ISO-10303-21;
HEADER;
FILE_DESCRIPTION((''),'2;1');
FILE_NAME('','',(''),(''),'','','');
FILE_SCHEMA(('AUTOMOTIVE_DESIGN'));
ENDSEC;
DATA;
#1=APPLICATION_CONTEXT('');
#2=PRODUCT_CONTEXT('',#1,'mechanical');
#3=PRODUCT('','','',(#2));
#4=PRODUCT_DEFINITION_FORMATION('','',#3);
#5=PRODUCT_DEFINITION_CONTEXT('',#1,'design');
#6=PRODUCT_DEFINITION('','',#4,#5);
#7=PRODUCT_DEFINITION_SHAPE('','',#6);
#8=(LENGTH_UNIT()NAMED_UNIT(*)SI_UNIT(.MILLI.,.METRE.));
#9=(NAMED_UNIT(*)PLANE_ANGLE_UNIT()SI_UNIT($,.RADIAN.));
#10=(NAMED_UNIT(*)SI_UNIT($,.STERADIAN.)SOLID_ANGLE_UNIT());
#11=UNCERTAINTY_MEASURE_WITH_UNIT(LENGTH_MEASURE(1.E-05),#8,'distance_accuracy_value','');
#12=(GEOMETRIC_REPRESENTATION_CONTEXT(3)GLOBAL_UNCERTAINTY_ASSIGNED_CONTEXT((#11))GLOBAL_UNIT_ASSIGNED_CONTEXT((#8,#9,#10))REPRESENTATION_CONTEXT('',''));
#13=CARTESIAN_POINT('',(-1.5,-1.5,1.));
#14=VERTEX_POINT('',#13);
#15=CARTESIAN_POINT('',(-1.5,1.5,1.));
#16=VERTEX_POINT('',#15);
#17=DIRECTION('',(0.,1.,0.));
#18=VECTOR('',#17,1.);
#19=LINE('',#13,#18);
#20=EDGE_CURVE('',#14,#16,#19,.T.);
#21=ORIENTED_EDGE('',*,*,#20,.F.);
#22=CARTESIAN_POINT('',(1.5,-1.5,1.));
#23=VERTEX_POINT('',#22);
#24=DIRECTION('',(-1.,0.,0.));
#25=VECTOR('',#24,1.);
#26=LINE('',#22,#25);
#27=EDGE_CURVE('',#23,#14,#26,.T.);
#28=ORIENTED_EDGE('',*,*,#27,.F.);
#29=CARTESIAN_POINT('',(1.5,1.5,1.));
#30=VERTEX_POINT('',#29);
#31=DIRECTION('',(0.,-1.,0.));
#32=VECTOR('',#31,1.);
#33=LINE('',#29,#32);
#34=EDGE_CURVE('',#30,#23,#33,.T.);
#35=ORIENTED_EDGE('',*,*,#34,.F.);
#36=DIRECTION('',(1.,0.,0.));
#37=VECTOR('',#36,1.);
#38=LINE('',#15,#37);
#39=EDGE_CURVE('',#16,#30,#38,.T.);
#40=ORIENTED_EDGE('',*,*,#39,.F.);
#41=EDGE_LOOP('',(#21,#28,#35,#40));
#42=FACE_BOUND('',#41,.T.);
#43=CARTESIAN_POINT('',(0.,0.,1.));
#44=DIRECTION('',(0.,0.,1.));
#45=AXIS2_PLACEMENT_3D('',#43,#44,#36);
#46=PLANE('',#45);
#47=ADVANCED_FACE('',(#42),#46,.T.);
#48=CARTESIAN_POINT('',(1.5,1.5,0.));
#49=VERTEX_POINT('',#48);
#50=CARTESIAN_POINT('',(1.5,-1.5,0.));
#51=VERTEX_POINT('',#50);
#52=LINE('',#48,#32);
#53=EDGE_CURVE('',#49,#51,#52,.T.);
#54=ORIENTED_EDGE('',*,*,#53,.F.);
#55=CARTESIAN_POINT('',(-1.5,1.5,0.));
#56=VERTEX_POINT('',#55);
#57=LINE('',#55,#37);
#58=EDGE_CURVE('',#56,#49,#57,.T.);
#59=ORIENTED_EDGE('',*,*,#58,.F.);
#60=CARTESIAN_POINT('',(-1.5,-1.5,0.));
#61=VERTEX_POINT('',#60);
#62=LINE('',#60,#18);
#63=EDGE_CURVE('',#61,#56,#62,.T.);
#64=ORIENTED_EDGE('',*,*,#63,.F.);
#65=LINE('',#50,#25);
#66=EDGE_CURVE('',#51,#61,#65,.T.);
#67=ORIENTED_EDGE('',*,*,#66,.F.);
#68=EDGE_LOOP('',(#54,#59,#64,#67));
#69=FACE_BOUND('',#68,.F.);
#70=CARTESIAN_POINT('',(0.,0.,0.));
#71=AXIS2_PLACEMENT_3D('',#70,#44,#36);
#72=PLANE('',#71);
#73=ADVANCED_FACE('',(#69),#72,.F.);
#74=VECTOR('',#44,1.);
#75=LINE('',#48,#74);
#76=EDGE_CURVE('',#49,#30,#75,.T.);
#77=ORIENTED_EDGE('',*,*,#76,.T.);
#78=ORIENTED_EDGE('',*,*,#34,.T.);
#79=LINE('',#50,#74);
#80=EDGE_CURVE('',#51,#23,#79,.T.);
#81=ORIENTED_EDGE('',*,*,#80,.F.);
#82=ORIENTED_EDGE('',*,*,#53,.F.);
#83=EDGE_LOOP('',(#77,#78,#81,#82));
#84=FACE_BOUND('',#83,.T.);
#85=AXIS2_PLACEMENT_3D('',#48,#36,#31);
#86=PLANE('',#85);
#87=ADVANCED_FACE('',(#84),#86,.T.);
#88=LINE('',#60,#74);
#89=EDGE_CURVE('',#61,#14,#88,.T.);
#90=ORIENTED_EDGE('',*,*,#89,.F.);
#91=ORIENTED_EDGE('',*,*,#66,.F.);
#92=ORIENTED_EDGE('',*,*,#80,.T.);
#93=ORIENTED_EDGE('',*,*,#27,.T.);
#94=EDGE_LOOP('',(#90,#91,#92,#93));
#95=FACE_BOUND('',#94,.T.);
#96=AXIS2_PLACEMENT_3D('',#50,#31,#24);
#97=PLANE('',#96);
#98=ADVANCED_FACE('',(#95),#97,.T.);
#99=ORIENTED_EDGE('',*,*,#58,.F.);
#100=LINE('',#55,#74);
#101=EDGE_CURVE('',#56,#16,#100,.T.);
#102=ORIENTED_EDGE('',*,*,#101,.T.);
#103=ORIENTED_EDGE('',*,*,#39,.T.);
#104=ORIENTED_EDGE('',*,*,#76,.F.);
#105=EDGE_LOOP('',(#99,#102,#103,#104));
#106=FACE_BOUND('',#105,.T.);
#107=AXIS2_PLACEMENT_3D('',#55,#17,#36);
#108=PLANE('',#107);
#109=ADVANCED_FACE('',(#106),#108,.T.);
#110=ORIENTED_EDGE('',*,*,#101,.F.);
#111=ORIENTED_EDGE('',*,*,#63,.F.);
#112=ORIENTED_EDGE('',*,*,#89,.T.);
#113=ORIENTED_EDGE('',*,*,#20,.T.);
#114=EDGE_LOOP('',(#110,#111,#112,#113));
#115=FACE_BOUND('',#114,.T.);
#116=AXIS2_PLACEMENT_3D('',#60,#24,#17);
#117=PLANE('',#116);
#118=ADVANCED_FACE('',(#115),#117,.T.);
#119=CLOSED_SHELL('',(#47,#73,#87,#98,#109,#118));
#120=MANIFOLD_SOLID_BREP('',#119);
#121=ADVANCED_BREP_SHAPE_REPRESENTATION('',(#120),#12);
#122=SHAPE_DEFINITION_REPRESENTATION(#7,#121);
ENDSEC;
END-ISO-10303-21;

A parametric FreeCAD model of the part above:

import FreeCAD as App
import Part
import Sketcher
from FreeCAD import Vector
Q = App.Units.Quantity


def add_polygon(sketch, points):
    """Adds a closed chain of lines whose ends are joined by coincident constraints."""
    first, n = sketch.GeometryCount, len(points)
    for a, b in zip(points, points[1:] + points[:1]):
        sketch.addGeometry(Part.LineSegment(App.Vector(*a, 0), App.Vector(*b, 0)), False)
    for i in range(n):
        sketch.addConstraint(Sketcher.Constraint("Coincident", first + i, 2, first + (i + 1) % n, 1))

doc = App.newDocument("Part")
body = doc.addObject("PartDesign::Body", "Body")

# Sketch on XY plane
sketch1 = body.newObject("Sketcher::SketchObject", "Sketch")
sketch1.AttachmentSupport = (doc.getObject("XY_Plane"), [""])
sketch1.MapMode = "FlatFace"
add_polygon(sketch1, [(-1.5, 1.5), (-1.5, -1.5), (1.5, -1.5), (1.5, 1.5)])  # lines 0-3
sketch1.addConstraint([
    Sketcher.Constraint("Vertical", 0),
    Sketcher.Constraint("Horizontal", 1),
    Sketcher.Constraint("Vertical", 2),
    Sketcher.Constraint("Horizontal", 3),
    Sketcher.Constraint("Symmetric", 0, 2, 2, 2, -1, 1),
    Sketcher.Constraint("Equal", 3, 0),
    Sketcher.Constraint("DistanceX", 1, 1, 1, 2, Q("3 mm")),
])
pad1 = body.newObject("PartDesign::Pad", "Pad")
pad1.Profile = sketch1
pad1.Length = 1

doc.recompute()
